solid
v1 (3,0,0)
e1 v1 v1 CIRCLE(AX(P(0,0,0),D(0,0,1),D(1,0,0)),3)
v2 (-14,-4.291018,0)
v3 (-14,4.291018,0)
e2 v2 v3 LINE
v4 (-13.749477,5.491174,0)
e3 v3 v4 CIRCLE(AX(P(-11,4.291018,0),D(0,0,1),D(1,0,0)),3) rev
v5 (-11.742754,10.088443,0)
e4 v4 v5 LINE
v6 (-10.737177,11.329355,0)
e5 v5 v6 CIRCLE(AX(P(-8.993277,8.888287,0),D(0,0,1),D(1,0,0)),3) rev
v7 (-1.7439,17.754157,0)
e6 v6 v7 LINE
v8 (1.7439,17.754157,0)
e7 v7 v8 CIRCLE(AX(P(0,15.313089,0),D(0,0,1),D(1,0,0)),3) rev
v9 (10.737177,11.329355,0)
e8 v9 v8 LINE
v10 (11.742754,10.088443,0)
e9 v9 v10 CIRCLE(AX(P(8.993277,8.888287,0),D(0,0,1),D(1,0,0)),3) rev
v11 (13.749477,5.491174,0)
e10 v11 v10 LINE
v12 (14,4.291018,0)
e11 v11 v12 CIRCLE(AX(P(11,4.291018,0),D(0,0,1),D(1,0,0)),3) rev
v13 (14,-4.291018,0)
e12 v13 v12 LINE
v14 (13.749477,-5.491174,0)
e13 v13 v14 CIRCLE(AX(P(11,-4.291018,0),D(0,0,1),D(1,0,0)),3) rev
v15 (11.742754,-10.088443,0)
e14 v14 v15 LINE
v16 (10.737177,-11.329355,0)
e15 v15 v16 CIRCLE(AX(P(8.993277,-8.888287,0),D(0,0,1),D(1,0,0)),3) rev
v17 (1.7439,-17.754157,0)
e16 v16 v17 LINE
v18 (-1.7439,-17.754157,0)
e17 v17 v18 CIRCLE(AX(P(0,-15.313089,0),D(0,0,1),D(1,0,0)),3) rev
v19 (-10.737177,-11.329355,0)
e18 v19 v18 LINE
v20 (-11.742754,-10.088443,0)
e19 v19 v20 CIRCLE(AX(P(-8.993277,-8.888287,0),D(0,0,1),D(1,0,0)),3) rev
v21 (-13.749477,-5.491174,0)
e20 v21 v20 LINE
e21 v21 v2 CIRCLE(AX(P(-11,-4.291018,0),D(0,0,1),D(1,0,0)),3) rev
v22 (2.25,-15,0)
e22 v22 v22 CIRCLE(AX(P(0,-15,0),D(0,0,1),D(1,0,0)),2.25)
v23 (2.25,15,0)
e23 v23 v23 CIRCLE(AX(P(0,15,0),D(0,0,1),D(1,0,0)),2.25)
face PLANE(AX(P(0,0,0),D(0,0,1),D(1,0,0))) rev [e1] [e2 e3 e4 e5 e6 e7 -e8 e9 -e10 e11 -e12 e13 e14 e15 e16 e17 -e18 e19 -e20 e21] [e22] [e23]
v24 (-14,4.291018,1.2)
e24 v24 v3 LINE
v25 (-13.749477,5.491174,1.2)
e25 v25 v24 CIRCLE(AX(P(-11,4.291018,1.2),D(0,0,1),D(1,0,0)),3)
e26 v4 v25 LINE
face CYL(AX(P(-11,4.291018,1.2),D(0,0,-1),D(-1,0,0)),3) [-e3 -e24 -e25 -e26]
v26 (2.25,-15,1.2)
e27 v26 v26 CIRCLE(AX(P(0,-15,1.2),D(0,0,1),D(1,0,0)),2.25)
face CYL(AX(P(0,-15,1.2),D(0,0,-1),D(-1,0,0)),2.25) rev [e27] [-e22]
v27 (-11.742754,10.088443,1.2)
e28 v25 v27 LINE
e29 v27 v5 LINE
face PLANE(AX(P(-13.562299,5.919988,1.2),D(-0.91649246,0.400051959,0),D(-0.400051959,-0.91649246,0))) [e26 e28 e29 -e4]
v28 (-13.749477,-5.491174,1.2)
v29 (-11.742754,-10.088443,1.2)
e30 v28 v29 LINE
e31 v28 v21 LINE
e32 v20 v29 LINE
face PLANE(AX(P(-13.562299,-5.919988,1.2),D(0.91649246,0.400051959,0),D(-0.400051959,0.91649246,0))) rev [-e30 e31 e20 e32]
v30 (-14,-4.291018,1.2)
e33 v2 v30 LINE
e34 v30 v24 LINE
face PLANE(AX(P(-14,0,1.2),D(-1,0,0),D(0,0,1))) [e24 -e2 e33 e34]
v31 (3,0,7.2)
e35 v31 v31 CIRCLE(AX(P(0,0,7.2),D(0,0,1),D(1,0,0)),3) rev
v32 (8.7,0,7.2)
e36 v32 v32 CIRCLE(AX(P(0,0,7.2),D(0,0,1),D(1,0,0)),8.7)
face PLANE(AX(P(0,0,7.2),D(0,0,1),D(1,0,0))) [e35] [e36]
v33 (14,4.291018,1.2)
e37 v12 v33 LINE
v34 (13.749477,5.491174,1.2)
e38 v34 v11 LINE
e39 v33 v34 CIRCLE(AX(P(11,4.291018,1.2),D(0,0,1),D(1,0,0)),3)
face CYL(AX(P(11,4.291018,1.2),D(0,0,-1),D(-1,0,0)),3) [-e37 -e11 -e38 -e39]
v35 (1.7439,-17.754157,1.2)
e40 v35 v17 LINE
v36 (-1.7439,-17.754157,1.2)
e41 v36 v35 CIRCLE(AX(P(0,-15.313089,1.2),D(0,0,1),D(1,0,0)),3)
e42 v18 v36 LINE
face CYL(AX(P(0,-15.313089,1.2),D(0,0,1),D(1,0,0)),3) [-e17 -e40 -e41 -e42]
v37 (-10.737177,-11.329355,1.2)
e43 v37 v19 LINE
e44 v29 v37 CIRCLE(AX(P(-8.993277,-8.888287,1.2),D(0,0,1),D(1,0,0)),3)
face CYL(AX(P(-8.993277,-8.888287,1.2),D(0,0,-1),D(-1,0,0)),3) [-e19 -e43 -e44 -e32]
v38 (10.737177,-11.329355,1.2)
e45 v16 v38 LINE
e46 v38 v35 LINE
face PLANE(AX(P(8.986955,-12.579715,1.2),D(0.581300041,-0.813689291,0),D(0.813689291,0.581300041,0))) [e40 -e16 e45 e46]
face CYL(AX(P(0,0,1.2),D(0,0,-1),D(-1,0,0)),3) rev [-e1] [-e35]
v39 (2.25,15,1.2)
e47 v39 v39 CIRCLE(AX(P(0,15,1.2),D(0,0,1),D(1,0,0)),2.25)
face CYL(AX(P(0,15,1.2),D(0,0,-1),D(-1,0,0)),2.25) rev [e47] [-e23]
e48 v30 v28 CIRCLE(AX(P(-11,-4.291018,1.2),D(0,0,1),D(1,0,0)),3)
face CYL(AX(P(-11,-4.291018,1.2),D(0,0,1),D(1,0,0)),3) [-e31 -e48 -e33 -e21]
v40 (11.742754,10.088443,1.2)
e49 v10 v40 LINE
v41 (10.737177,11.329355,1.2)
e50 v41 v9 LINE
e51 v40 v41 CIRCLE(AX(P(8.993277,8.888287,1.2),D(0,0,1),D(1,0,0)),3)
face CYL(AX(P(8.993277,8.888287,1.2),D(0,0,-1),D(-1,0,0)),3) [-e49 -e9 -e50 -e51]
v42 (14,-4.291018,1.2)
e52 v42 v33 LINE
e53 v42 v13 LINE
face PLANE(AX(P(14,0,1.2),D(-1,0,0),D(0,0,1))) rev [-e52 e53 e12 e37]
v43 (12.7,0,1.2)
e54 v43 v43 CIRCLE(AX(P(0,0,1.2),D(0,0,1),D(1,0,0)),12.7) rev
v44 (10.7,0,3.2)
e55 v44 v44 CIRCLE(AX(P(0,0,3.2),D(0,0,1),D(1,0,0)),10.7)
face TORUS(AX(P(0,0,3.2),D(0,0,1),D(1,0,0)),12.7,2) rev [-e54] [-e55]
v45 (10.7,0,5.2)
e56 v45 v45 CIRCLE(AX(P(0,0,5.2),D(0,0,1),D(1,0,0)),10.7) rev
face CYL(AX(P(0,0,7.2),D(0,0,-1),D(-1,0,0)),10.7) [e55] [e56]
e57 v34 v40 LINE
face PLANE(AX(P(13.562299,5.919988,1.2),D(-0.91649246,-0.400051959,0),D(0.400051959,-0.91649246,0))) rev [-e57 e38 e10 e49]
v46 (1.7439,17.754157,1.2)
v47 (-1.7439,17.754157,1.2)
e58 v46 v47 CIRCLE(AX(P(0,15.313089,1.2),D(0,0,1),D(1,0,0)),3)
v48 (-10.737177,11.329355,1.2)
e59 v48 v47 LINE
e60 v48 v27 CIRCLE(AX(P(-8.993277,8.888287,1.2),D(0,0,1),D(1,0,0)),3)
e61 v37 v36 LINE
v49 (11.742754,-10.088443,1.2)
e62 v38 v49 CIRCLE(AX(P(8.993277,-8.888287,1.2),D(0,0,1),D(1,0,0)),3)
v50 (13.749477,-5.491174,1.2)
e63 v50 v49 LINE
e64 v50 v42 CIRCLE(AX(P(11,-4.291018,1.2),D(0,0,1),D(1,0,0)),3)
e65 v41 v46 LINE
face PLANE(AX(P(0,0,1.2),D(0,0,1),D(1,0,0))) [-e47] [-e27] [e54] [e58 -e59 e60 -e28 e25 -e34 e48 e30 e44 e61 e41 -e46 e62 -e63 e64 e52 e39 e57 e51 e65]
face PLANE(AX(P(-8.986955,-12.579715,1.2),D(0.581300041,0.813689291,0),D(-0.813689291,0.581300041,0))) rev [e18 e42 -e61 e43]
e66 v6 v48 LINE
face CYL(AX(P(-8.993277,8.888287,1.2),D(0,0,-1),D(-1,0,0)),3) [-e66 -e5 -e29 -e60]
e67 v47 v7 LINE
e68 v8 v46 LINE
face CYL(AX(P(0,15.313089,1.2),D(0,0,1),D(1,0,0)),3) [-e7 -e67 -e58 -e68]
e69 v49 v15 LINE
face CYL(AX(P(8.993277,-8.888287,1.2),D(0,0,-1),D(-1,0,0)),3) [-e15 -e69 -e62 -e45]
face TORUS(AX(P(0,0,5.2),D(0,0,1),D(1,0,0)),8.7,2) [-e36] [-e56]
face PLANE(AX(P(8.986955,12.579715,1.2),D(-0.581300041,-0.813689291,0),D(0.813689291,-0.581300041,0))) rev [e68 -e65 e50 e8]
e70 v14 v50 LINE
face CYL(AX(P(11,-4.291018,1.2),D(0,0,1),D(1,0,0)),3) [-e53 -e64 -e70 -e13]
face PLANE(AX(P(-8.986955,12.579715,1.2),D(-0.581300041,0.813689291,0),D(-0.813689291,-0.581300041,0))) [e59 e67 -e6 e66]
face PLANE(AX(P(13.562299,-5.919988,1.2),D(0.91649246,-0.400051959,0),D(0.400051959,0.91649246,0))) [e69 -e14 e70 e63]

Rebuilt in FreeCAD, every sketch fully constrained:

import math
import FreeCAD as App
import Part
import Sketcher

V = App.Vector


def edges_at(feature, points):
    """Names of the edges that pass closest to the given points."""
    edges = feature.Shape.Edges
    near = lambda p: min(range(len(edges)), key=lambda i: edges[i].distToShape(Part.Vertex(*p))[0])
    return sorted({f"Edge{near(p) + 1}" for p in points})

doc = App.newDocument("Part")
body = doc.addObject("PartDesign::Body", "Body")

# Sketch on XY plane
sketch1 = doc.addObject("Sketcher::SketchObject", "Sketch")
body.addObject(sketch1)
sketch1.AttachmentSupport = (doc.XY_Plane, [""])
sketch1.MapMode = "FlatFace"
sketch1.addGeometry([
    Part.LineSegment(V(-11.4, -10.8, 0), V(0, -19, 0)),  # 0
    Part.LineSegment(V(0, -19, 0), V(11.4, -10.8, 0)),  # 1
    Part.LineSegment(V(11.4, -10.8, 0), V(14, -4.9, 0)),  # 2
    Part.LineSegment(V(14, -4.9, 0), V(14, 4.9, 0)),  # 3
    Part.LineSegment(V(14, 4.9, 0), V(11.4, 10.8, 0)),  # 4
    Part.LineSegment(V(11.4, 10.8, 0), V(0, 19, 0)),  # 5
    Part.LineSegment(V(0, 19, 0), V(-11.4, 10.8, 0)),  # 6
    Part.LineSegment(V(-11.4, 10.8, 0), V(-14, 4.9, 0)),  # 7
    Part.LineSegment(V(-14, 4.9, 0), V(-14, -4.9, 0)),  # 8
    Part.LineSegment(V(-14, -4.9, 0), V(-11.4, -10.8, 0)),  # 9
    Part.ArcOfCircle(Part.Circle(V(0, -15, 0), V(0, 0, 1), 2.2), math.radians(90), math.radians(270)),  # 10
    Part.ArcOfCircle(Part.Circle(V(0, -15, 0), V(0, 0, 1), 2.2), math.radians(0), math.radians(90)),  # 11
    Part.ArcOfCircle(Part.Circle(V(0, -15, 0), V(0, 0, 1), 2.2), math.radians(-90), math.radians(0)),  # 12
    Part.ArcOfCircle(Part.Circle(V(0, 0, 0), V(0, 0, 1), 3), math.radians(180), math.radians(270)),  # 13
    Part.ArcOfCircle(Part.Circle(V(0, 0, 0), V(0, 0, 1), 3), math.radians(90), math.radians(180)),  # 14
    Part.ArcOfCircle(Part.Circle(V(0, 0, 0), V(0, 0, 1), 3), math.radians(0), math.radians(90)),  # 15
    Part.ArcOfCircle(Part.Circle(V(0, 0, 0), V(0, 0, 1), 3), math.radians(-90), math.radians(0)),  # 16
    Part.ArcOfCircle(Part.Circle(V(0, 15, 0), V(0, 0, 1), 2.2), math.radians(90), math.radians(270)),  # 17
    Part.ArcOfCircle(Part.Circle(V(0, 15, 0), V(0, 0, 1), 2.2), math.radians(0), math.radians(90)),  # 18
    Part.ArcOfCircle(Part.Circle(V(0, 15, 0), V(0, 0, 1), 2.2), math.radians(-90), math.radians(0)),  # 19
], False)
sketch1.addConstraint([
    Sketcher.Constraint("Coincident", 0, 2, 1, 1),
    Sketcher.Constraint("Coincident", 1, 2, 2, 1),
    Sketcher.Constraint("Coincident", 2, 2, 3, 1),
    Sketcher.Constraint("Coincident", 3, 2, 4, 1),
    Sketcher.Constraint("Coincident", 4, 2, 5, 1),
    Sketcher.Constraint("Coincident", 5, 2, 6, 1),
    Sketcher.Constraint("Coincident", 6, 2, 7, 1),
    Sketcher.Constraint("Coincident", 7, 2, 8, 1),
    Sketcher.Constraint("Coincident", 8, 2, 9, 1),
    Sketcher.Constraint("Coincident", 9, 2, 0, 1),
    Sketcher.Constraint("Tangent", 10, 1, 11, 2),
    Sketcher.Constraint("Tangent", 11, 1, 12, 2),
    Sketcher.Constraint("Tangent", 12, 1, 10, 2),
    Sketcher.Constraint("Tangent", 13, 1, 14, 2),
    Sketcher.Constraint("Tangent", 14, 1, 15, 2),
    Sketcher.Constraint("Tangent", 15, 1, 16, 2),
    Sketcher.Constraint("Tangent", 16, 1, 13, 2),
    Sketcher.Constraint("Tangent", 17, 1, 18, 2),
    Sketcher.Constraint("Tangent", 18, 1, 19, 2),
    Sketcher.Constraint("Tangent", 19, 1, 17, 2),
    Sketcher.Constraint("Vertical", 3),
    Sketcher.Constraint("Vertical", 8),
    Sketcher.Constraint("Coincident", 13, 3, -1, 1),
    Sketcher.Constraint("Equal", 13, 14),
    Sketcher.Constraint("Equal", 12, 17),
    Sketcher.Constraint("Symmetric", 10, 3, 17, 3, -1, 1),
    Sketcher.Constraint("Symmetric", 0, 2, 5, 2, -1, 1),
    Sketcher.Constraint("Symmetric", 1, 2, 6, 2, -1, 1),
    Sketcher.Constraint("Symmetric", 2, 2, 7, 2, -1, 1),
    Sketcher.Constraint("Symmetric", 4, 2, 9, 2, -1, 1),
    Sketcher.Constraint("Symmetric", 4, 2, 6, 2, -2),
    Sketcher.Constraint("Symmetric", 11, 1, 18, 1, -1),
    Sketcher.Constraint("PointOnObject", 0, 2, -2),
    Sketcher.Constraint("PointOnObject", 10, 1, -2),
    Sketcher.Constraint("PointOnObject", 12, 1, -2),
    Sketcher.Constraint("PointOnObject", 13, 1, -1),
    Sketcher.Constraint("PointOnObject", 14, 1, -2),
    Sketcher.Constraint("PointOnObject", 15, 1, -1),
    Sketcher.Constraint("PointOnObject", 16, 1, -2),
    Sketcher.Constraint("PointOnObject", 17, 1, -2),
    Sketcher.Constraint("PointOnObject", 19, 1, -2),
    Sketcher.Constraint("Parallel", 4, 9),
    Sketcher.Constraint("Horizontal", 3, 2, 7, 2),
    Sketcher.Constraint("Horizontal", 12, 3, 11, 1),
    Sketcher.Constraint("Radius", 13, 3.0),
    Sketcher.Constraint("Radius", 10, 2.25),
    Sketcher.Constraint("DistanceY", 10, 3, -1, 1, 15.0),
    Sketcher.Constraint("DistanceY", 0, 2, -1, 1, 19.0),
    Sketcher.Constraint("DistanceX", -1, 1, 2, 2, 14.0),
    Sketcher.Constraint("DistanceY", 3, 1, 3, 2, 9.834487),
    Sketcher.Constraint("DistanceY", 1, 2, -1, 1, 10.847752),
    Sketcher.Constraint("Distance", 0, 14.024166),
])
pad1 = doc.addObject("PartDesign::Pad", "Pad")
body.addObject(pad1)
pad1.Profile = sketch1
pad1.Length = 1.2
doc.recompute()

fillet = doc.addObject("PartDesign::Fillet", "Fillet")
body.addObject(fillet)
fillet.Base = (pad1, edges_at(pad1, [
    (11.411, 10.848, 0.6),
    (14, 4.917, 0.6),
    (14, -4.917, 0.6),
    (11.411, -10.848, 0.6),
    (0, -19, 0.6),
    (-11.411, -10.848, 0.6),
    (-14, -4.917, 0.6),
    (-14, 4.917, 0.6),
    (-11.411, 10.848, 0.6),
    (0, 19, 0.6),
]))
fillet.Radius = 3

# Sketch on XY plane
sketch2 = doc.addObject("Sketcher::SketchObject", "Sketch001")
body.addObject(sketch2)
sketch2.AttachmentSupport = (doc.XY_Plane, [""])
sketch2.MapMode = "FlatFace"
sketch2.AttachmentOffset = App.Placement(V(0, 0, 1.2), App.Rotation())
sketch2.addGeometry(Part.Circle(V(0, 0, 0), V(0, 0, 1), 11), False)
sketch2.addConstraint([
    Sketcher.Constraint("Coincident", 0, 3, -1, 1),
    Sketcher.Constraint("Diameter", 0, 21.4),
])
pad2 = doc.addObject("PartDesign::Pad", "Pad001")
body.addObject(pad2)
pad2.Profile = sketch2
pad2.Length = 6

# Sketch on XY plane
sketch3 = doc.addObject("Sketcher::SketchObject", "Sketch002")
body.addObject(sketch3)
sketch3.AttachmentSupport = (doc.XY_Plane, [""])
sketch3.MapMode = "FlatFace"
sketch3.addGeometry(Part.Circle(V(0, 0, 0), V(0, 0, 1), 3), False)
sketch3.addConstraint([
    Sketcher.Constraint("Coincident", 0, 3, -1, 1),
    Sketcher.Constraint("Diameter", 0, 6.0),
])
pocket1 = doc.addObject("PartDesign::Pocket", "Pocket")
body.addObject(pocket1)
pocket1.Profile = sketch3
pocket1.Length = 20
pocket1.Reversed = True
doc.recompute()

fillet2 = doc.addObject("PartDesign::Fillet", "Fillet001")
body.addObject(fillet2)
fillet2.Base = (pocket1, edges_at(pocket1, [(-10.7, 0, 1.2), (-10.7, 0, 7.2)]))
fillet2.Radius = 2

doc.recompute()
